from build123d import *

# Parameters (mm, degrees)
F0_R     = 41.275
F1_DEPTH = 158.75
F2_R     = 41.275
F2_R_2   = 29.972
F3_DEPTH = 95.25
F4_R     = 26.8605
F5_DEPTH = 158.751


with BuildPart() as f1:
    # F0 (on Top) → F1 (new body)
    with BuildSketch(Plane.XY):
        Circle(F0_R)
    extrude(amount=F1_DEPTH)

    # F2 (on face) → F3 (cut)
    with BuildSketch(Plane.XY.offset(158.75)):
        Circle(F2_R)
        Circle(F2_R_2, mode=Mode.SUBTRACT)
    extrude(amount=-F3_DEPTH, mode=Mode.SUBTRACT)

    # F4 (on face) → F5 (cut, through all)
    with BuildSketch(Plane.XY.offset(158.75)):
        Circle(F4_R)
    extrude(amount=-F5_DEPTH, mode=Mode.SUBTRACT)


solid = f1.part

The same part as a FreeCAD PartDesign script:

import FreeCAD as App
import Part
import Sketcher
Q = App.Units.Quantity

doc = App.newDocument("Part")
body = doc.addObject("PartDesign::Body", "Body")

sketch1 = body.newObject("Sketcher::SketchObject", "Sketch")
sketch1.AttachmentSupport = (doc.getObject("XY_Plane"), [""])
sketch1.MapMode = "FlatFace"
sketch1.addGeometry(Part.Circle(App.Vector(0, 0, 0), App.Vector(0, 0, 1), 41.275), False)
sketch1.addConstraint(Sketcher.Constraint("Coincident", 0, 3, -1, 1))
sketch1.addConstraint(Sketcher.Constraint("Diameter", 0, Q("3.25 in")))
pad1 = body.newObject("PartDesign::Pad", "Pad")
pad1.Profile = sketch1
pad1.Length = Q("6.25 in")

sketch2 = body.newObject("Sketcher::SketchObject", "Sketch001")
sketch2.AttachmentSupport = (doc.getObject("XY_Plane"), [""])
sketch2.MapMode = "FlatFace"
sketch2.AttachmentOffset = App.Placement(App.Vector(0, 0, 6.25 * 25.4), App.Rotation())
sketch2.addGeometry(Part.Circle(App.Vector(0, 0, 0), App.Vector(0, 0, 1), 41.275), False)
sketch2.addGeometry(Part.Circle(App.Vector(0, 0, 0), App.Vector(0, 0, 1), 29.972), False)
sketch2.addConstraint(Sketcher.Constraint("Coincident", 0, 3, -1, 1))
sketch2.addConstraint(Sketcher.Constraint("Coincident", 1, 3, -1, 1))
sketch2.addConstraint(Sketcher.Constraint("Diameter", 0, Q("3.25 in")))
sketch2.addConstraint(Sketcher.Constraint("Diameter", 1, Q("2.36 in")))
pocket1 = body.newObject("PartDesign::Pocket", "Pocket")
pocket1.Profile = sketch2
pocket1.Length = Q("3.75 in")

sketch3 = body.newObject("Sketcher::SketchObject", "Sketch002")
sketch3.AttachmentSupport = (doc.getObject("XY_Plane"), [""])
sketch3.MapMode = "FlatFace"
sketch3.AttachmentOffset = App.Placement(App.Vector(0, 0, 6.25 * 25.4), App.Rotation())
sketch3.addGeometry(Part.Circle(App.Vector(0, 0, 0), App.Vector(0, 0, 1), 26.8605), False)
sketch3.addConstraint(Sketcher.Constraint("Coincident", 0, 3, -1, 1))
sketch3.addConstraint(Sketcher.Constraint("Diameter", 0, Q("2.115 in")))
pocket2 = body.newObject("PartDesign::Pocket", "Pocket001")
pocket2.Profile = sketch3
pocket2.Type = "ThroughAll"

doc.recompute()
